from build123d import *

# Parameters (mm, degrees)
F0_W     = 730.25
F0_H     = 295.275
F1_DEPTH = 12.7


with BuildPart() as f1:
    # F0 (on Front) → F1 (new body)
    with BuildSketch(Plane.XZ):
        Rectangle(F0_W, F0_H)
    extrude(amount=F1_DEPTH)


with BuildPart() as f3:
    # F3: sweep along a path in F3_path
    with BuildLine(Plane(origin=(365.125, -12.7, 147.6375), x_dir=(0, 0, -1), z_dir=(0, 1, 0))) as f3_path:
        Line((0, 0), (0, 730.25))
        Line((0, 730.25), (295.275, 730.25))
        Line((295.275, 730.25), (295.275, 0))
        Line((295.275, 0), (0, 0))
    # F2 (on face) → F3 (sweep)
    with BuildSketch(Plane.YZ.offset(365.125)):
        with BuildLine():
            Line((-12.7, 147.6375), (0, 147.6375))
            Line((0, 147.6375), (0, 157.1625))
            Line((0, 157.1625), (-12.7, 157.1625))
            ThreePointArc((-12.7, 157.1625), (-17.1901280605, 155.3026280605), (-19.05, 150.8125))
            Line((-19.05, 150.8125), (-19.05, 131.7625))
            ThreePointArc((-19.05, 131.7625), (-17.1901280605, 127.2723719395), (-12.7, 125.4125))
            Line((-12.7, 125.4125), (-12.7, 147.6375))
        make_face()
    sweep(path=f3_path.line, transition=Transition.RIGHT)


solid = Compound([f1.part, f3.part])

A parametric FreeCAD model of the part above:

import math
import FreeCAD as App
import Part
import Sketcher
Q = App.Units.Quantity


def add_polygon(sketch, points):
    """Adds a closed chain of lines whose ends are joined by coincident constraints."""
    first, n = sketch.GeometryCount, len(points)
    for a, b in zip(points, points[1:] + points[:1]):
        sketch.addGeometry(Part.LineSegment(App.Vector(*a, 0), App.Vector(*b, 0)), False)
    for i in range(n):
        sketch.addConstraint(Sketcher.Constraint("Coincident", first + i, 2, first + (i + 1) % n, 1))

doc = App.newDocument("Part")
body = doc.addObject("PartDesign::Body", "Body")

sketch1 = body.newObject("Sketcher::SketchObject", "Sketch")
sketch1.AttachmentSupport = (doc.getObject("XZ_Plane"), [""])
sketch1.MapMode = "FlatFace"
add_polygon(sketch1, [(-365, 148), (-365, -148), (365, -148), (365, 148)])
sketch1.addConstraint([
    Sketcher.Constraint("Vertical", 0),
    Sketcher.Constraint("Horizontal", 1),
    Sketcher.Constraint("Vertical", 2),
    Sketcher.Constraint("Horizontal", 3),
    Sketcher.Constraint("Symmetric", 0, 2, 2, 2, -1, 1),
    Sketcher.Constraint("DistanceX", 1, 1, 1, 2, Q("28.75 in")),
    Sketcher.Constraint("DistanceY", 0, 2, 0, 1, Q("11.625 in")),
])
pad1 = body.newObject("PartDesign::Pad", "Pad")
pad1.Profile = sketch1
pad1.Length = Q("0.5 in")
body2 = doc.addObject("PartDesign::Body", "Body001")

sketch2 = body2.newObject("Sketcher::SketchObject", "Sketch001")
sketch2.AttachmentSupport = (doc.getObject("YZ_Plane001"), [""])
sketch2.MapMode = "FlatFace"
sketch2.AttachmentOffset = App.Placement(App.Vector(0, 0, 14.375 * 25.4), App.Rotation())
sketch2.addGeometry([
    Part.LineSegment(App.Vector(-13, 148, 0), App.Vector(0, 148, 0)),
    Part.LineSegment(App.Vector(0, 148, 0), App.Vector(0, 157, 0)),
    Part.LineSegment(App.Vector(0, 157, 0), App.Vector(-13, 157, 0)),
    Part.ArcOfCircle(Part.Circle(App.Vector(-13, 151, 0), App.Vector(0, 0, 1), 6), math.radians(90), math.radians(180)),
    Part.LineSegment(App.Vector(-19, 151, 0), App.Vector(-19, 132, 0)),
    Part.ArcOfCircle(Part.Circle(App.Vector(-13, 132, 0), App.Vector(0, 0, 1), 6), math.radians(180), math.radians(270)),
    Part.LineSegment(App.Vector(-13, 125, 0), App.Vector(-13, 148, 0)),
], False)
sketch2.addConstraint([
    Sketcher.Constraint("Coincident", 0, 2, 1, 1),
    Sketcher.Constraint("Coincident", 1, 2, 2, 1),
    Sketcher.Constraint("Tangent", 2, 2, 3, 1),
    Sketcher.Constraint("Tangent", 3, 2, 4, 1),
    Sketcher.Constraint("Tangent", 4, 2, 5, 1),
    Sketcher.Constraint("Coincident", 5, 2, 6, 1),
    Sketcher.Constraint("Coincident", 6, 2, 0, 1),
    Sketcher.Constraint("Horizontal", 0),
    Sketcher.Constraint("Vertical", 1),
    Sketcher.Constraint("Horizontal", 2),
    Sketcher.Constraint("Vertical", 4),
    Sketcher.Constraint("Vertical", 6),
    Sketcher.Constraint("Equal", 3, 5),
    Sketcher.Constraint("PointOnObject", 0, 2, -2),
    Sketcher.Constraint("Vertical", 2, 2, 5, 2),
    Sketcher.Constraint("Radius", 3, Q("0.25 in")),
    Sketcher.Constraint("DistanceX", 0, 1, 0, 2, Q("0.5 in")),
    Sketcher.Constraint("DistanceY", 5, 3, 1, 2, Q("1 in")),
    Sketcher.Constraint("DistanceY", 1, 1, 1, 2, Q("0.375 in")),
    Sketcher.Constraint("DistanceY", -1, 1, 3, 3, Q("5.9375 in")),
])

sketch3 = body2.newObject("Sketcher::SketchObject", "Sketch002")
sketch3.AttachmentSupport = (doc.getObject("XZ_Plane001"), [""])
sketch3.MapMode = "FlatFace"
sketch3.AttachmentOffset = App.Placement(App.Vector(0, 0, 0.5 * 25.4), App.Rotation())
add_polygon(sketch3, [(365, 148), (-365, 148), (-365, -148), (365, -148)])
sketch3.addConstraint([
    Sketcher.Constraint("Horizontal", 0),
    Sketcher.Constraint("Vertical", 1),
    Sketcher.Constraint("Horizontal", 2),
    Sketcher.Constraint("Vertical", 3),
    Sketcher.Constraint("Symmetric", 0, 2, 2, 2, -1, 1),
    Sketcher.Constraint("DistanceX", 0, 2, 0, 1, Q("28.75 in")),
    Sketcher.Constraint("DistanceY", 1, 2, 1, 1, Q("11.625 in")),
])
doc.recompute()

additivepipe = body2.newObject("PartDesign::AdditivePipe", "AdditivePipe")
additivepipe.Profile = sketch2
additivepipe.Spine = (sketch3, ["Edge1", "Edge2", "Edge3", "Edge4"])
additivepipe.Transition = "Right corner"

doc.recompute()
